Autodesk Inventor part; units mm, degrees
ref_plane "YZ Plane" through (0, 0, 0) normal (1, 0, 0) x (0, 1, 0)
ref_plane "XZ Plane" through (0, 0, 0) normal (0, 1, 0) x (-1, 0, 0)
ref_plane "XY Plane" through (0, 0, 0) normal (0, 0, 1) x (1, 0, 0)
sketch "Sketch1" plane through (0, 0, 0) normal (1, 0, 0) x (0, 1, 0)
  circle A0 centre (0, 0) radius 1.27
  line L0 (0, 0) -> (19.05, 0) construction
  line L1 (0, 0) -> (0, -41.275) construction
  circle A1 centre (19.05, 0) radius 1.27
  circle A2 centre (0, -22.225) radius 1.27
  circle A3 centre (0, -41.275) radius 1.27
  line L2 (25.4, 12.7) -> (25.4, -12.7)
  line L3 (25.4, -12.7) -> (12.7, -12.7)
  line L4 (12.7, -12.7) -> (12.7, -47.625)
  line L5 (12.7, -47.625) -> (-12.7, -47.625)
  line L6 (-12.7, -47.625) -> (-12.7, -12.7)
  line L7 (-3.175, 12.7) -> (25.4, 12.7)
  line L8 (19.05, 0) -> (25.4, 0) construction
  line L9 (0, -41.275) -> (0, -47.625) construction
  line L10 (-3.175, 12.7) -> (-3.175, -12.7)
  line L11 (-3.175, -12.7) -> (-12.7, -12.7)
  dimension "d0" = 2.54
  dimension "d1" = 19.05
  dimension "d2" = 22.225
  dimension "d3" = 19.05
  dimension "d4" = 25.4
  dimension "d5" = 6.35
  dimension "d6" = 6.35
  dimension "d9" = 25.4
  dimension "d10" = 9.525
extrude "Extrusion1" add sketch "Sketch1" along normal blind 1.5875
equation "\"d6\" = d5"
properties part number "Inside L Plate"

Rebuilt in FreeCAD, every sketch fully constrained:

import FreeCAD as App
import Part
import Sketcher

V = App.Vector
Q = App.Units.Quantity


def add_polygon(sketch, points):
    """Adds a closed chain of lines whose ends are joined by coincident constraints."""
    first, n = sketch.GeometryCount, len(points)
    for a, b in zip(points, points[1:] + points[:1]):
        sketch.addGeometry(Part.LineSegment(App.Vector(*a, 0), App.Vector(*b, 0)), False)
    for i in range(n):
        sketch.addConstraint(Sketcher.Constraint("Coincident", first + i, 2, first + (i + 1) % n, 1))

doc = App.newDocument("Part")
body = doc.addObject("PartDesign::Body", "Body")

# Sketch on YZ plane
sketch1 = body.newObject("Sketcher::SketchObject", "Sketch")
sketch1.AttachmentSupport = (doc.getObject("YZ_Plane"), [""])
sketch1.MapMode = "FlatFace"
add_polygon(sketch1, [(25.4, -12.7), (25.4, 12.7), (-3.2, 12.7), (-3.2, -12.7), (-12.7, -12.7), (-12.7, -47.6), (12.7, -47.6), (12.7, -12.7)])  # lines 0-7
sketch1.addGeometry(Part.Circle(V(0, -41.3, 0), V(0, 0, 1), 1.3), False)  # 8
sketch1.addGeometry(Part.Circle(V(0, -22.2, 0), V(0, 0, 1), 1.3), False)  # 9
sketch1.addGeometry(Part.Circle(V(0, 0, 0), V(0, 0, 1), 1.3), False)  # 10
sketch1.addGeometry(Part.Circle(V(19.1, 0, 0), V(0, 0, 1), 1.3), False)  # 11
sketch1.addConstraint([
    Sketcher.Constraint("Vertical", 0),
    Sketcher.Constraint("Horizontal", 1),
    Sketcher.Constraint("Vertical", 2),
    Sketcher.Constraint("Horizontal", 3),
    Sketcher.Constraint("Vertical", 4),
    Sketcher.Constraint("Horizontal", 5),
    Sketcher.Constraint("Vertical", 6),
    Sketcher.Constraint("Horizontal", 7),
    Sketcher.Constraint("Coincident", 10, 3, -1, 1),
    Sketcher.Constraint("Equal", 8, 9),
    Sketcher.Constraint("Equal", 9, 10),
    Sketcher.Constraint("Equal", 10, 11),
    Sketcher.Constraint("Symmetric", 3, 2, 6, 2, -2),
    Sketcher.Constraint("PointOnObject", 8, 3, -2),
    Sketcher.Constraint("PointOnObject", 9, 3, -2),
    Sketcher.Constraint("PointOnObject", 11, 3, -1),
    Sketcher.Constraint("Equal", 5, 0),
    Sketcher.Constraint("Diameter", 8, Q("0.1 in")),
    Sketcher.Constraint("DistanceX", 5, 1, 5, 2, Q("1 in")),
    Sketcher.Constraint("DistanceX", -1, 1, 0, 2, Q("1 in")),
    Sketcher.Constraint("DistanceY", 4, 2, 9, 3, Q("1 in")),
    Sketcher.Constraint("DistanceX", 3, 2, 3, 1, Q("0.375 in")),
    Sketcher.Constraint("DistanceX", -1, 1, 11, 3, Q("0.75 in")),
    Sketcher.Constraint("DistanceY", 8, 3, 9, 3, Q("0.75 in")),
    Sketcher.Constraint("DistanceY", 9, 3, -1, 1, Q("0.875 in")),
    Sketcher.Constraint("DistanceY", 9, 3, 2, 2, Q("0.375 in")),
])
pad1 = body.newObject("PartDesign::Pad", "Pad")
pad1.Profile = sketch1
pad1.Length = Q("0.0625 in")

doc.recompute()
